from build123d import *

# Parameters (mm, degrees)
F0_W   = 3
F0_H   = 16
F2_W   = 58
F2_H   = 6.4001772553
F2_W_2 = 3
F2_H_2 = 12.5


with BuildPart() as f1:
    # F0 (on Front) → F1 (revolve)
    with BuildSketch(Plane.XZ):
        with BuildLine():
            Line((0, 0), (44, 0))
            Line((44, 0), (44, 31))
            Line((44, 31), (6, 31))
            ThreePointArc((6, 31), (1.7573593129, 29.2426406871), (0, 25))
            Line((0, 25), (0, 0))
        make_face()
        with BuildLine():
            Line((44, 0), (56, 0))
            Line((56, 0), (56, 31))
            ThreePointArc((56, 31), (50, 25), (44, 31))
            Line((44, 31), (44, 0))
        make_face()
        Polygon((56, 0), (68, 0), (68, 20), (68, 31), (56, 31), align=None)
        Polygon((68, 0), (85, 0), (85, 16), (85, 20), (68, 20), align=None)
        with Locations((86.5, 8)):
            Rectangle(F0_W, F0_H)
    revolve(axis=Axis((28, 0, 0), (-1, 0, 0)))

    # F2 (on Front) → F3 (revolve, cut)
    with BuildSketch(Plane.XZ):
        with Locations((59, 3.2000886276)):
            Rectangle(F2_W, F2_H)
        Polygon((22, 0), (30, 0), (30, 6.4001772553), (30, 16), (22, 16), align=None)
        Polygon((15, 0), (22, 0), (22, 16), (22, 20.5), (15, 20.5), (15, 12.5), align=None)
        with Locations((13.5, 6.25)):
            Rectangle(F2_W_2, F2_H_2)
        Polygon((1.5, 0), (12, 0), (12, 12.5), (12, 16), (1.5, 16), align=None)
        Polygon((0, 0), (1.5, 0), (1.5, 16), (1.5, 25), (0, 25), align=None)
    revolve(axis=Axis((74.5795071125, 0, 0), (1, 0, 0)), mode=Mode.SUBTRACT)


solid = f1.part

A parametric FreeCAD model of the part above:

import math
import FreeCAD as App
import Part
import Sketcher
from FreeCAD import Vector

doc = App.newDocument("Part")
body = doc.addObject("PartDesign::Body", "Body")

sketch1 = doc.addObject("Sketcher::SketchObject", "Sketch")
body.addObject(sketch1)
sketch1.AttachmentSupport = (doc.XZ_Plane, [""])
sketch1.MapMode = "FlatFace"
sketch1.addGeometry([
    Part.LineSegment(Vector(0, 0, 0), Vector(88, 0, 0)),
    Part.LineSegment(Vector(88, 0, 0), Vector(88, 16, 0)),
    Part.LineSegment(Vector(88, 16, 0), Vector(85, 16, 0)),
    Part.LineSegment(Vector(85, 16, 0), Vector(85, 20, 0)),
    Part.LineSegment(Vector(85, 20, 0), Vector(68, 20, 0)),
    Part.LineSegment(Vector(68, 20, 0), Vector(68, 31, 0)),
    Part.LineSegment(Vector(68, 31, 0), Vector(56, 31, 0)),
    Part.ArcOfCircle(Part.Circle(Vector(50, 31, 0), Vector(0, 0, 1), 6), math.radians(180), math.radians(360)),
    Part.LineSegment(Vector(44, 31, 0), Vector(6, 31, 0)),
    Part.ArcOfCircle(Part.Circle(Vector(6, 25, 0), Vector(0, 0, 1), 6), math.radians(90), math.radians(180)),
    Part.LineSegment(Vector(0, 25, 0), Vector(0, 0, 0)),
], False)
sketch1.addConstraint([
    Sketcher.Constraint("Coincident", 0, 2, 1, 1),
    Sketcher.Constraint("Coincident", 1, 2, 2, 1),
    Sketcher.Constraint("Coincident", 2, 2, 3, 1),
    Sketcher.Constraint("Coincident", 3, 2, 4, 1),
    Sketcher.Constraint("Coincident", 4, 2, 5, 1),
    Sketcher.Constraint("Coincident", 5, 2, 6, 1),
    Sketcher.Constraint("Coincident", 6, 2, 7, 2),
    Sketcher.Constraint("Coincident", 7, 1, 8, 1),
    Sketcher.Constraint("Tangent", 8, 2, 9, 1),
    Sketcher.Constraint("Tangent", 9, 2, 10, 1),
    Sketcher.Constraint("Coincident", 10, 2, 0, 1),
    Sketcher.Constraint("Horizontal", 0),
    Sketcher.Constraint("Vertical", 1),
    Sketcher.Constraint("Horizontal", 2),
    Sketcher.Constraint("Vertical", 3),
    Sketcher.Constraint("Horizontal", 4),
    Sketcher.Constraint("Vertical", 5),
    Sketcher.Constraint("Horizontal", 6),
    Sketcher.Constraint("Horizontal", 8),
    Sketcher.Constraint("Vertical", 10),
    Sketcher.Constraint("Coincident", 10, 2, -1, 1),
    Sketcher.Constraint("Equal", 7, 9),
    Sketcher.Constraint("Horizontal", 7, 3, 5, 2),
    Sketcher.Constraint("Horizontal", 6, 2, 7, 1),
    Sketcher.Constraint("Radius", 7, 6.0),
    Sketcher.Constraint("DistanceX", 0, 1, 0, 2, 88.0),
    Sketcher.Constraint("DistanceX", 2, 2, 2, 1, 3.0),
    Sketcher.Constraint("DistanceX", 4, 2, 4, 1, 17.0),
    Sketcher.Constraint("DistanceX", 6, 2, 6, 1, 12.0),
    Sketcher.Constraint("DistanceY", 1, 1, 1, 2, 16.0),
    Sketcher.Constraint("DistanceY", 3, 1, 3, 2, 4.0),
    Sketcher.Constraint("DistanceY", 5, 1, 5, 2, 11.0),
])
revolution = doc.addObject("PartDesign::Revolution", "Revolution")
body.addObject(revolution)
revolution.Profile = sketch1
revolution.ReferenceAxis = (sketch1, ["H_Axis"])
revolution.Angle = 360

sketch2 = doc.addObject("Sketcher::SketchObject", "Sketch001")
body.addObject(sketch2)
sketch2.AttachmentSupport = (doc.XZ_Plane, [""])
sketch2.MapMode = "FlatFace"
sketch2.addGeometry([
    Part.LineSegment(Vector(88, 0, 0), Vector(88, 6.4, 0)),
    Part.LineSegment(Vector(88, 6.4, 0), Vector(30, 6.4, 0)),
    Part.LineSegment(Vector(30, 6.4, 0), Vector(30, 16, 0)),
    Part.LineSegment(Vector(30, 16, 0), Vector(22, 16, 0)),
    Part.LineSegment(Vector(22, 16, 0), Vector(22, 20.5, 0)),
    Part.LineSegment(Vector(22, 20.5, 0), Vector(15, 20.5, 0)),
    Part.LineSegment(Vector(15, 20.5, 0), Vector(15, 12.5, 0)),
    Part.LineSegment(Vector(15, 12.5, 0), Vector(12, 12.5, 0)),
    Part.LineSegment(Vector(12, 12.5, 0), Vector(12, 16, 0)),
    Part.LineSegment(Vector(12, 16, 0), Vector(1.5, 16, 0)),
    Part.LineSegment(Vector(1.5, 16, 0), Vector(1.5, 25, 0)),
    Part.LineSegment(Vector(1.5, 25, 0), Vector(0, 25, 0)),
    Part.LineSegment(Vector(0, 25, 0), Vector(0, 0, 0)),
    Part.LineSegment(Vector(0, 0, 0), Vector(88, 0, 0)),
], False)
sketch2.addConstraint([
    Sketcher.Constraint("Coincident", 0, 2, 1, 1),
    Sketcher.Constraint("Coincident", 1, 2, 2, 1),
    Sketcher.Constraint("Coincident", 2, 2, 3, 1),
    Sketcher.Constraint("Coincident", 3, 2, 4, 1),
    Sketcher.Constraint("Coincident", 4, 2, 5, 1),
    Sketcher.Constraint("Coincident", 5, 2, 6, 1),
    Sketcher.Constraint("Coincident", 6, 2, 7, 1),
    Sketcher.Constraint("Coincident", 7, 2, 8, 1),
    Sketcher.Constraint("Coincident", 8, 2, 9, 1),
    Sketcher.Constraint("Coincident", 9, 2, 10, 1),
    Sketcher.Constraint("Coincident", 10, 2, 11, 1),
    Sketcher.Constraint("Coincident", 11, 2, 12, 1),
    Sketcher.Constraint("Coincident", 12, 2, 13, 1),
    Sketcher.Constraint("Coincident", 13, 2, 0, 1),
    Sketcher.Constraint("Vertical", 0),
    Sketcher.Constraint("Horizontal", 1),
    Sketcher.Constraint("Vertical", 2),
    Sketcher.Constraint("Horizontal", 3),
    Sketcher.Constraint("Vertical", 4),
    Sketcher.Constraint("Horizontal", 5),
    Sketcher.Constraint("Vertical", 6),
    Sketcher.Constraint("Horizontal", 7),
    Sketcher.Constraint("Vertical", 8),
    Sketcher.Constraint("Horizontal", 9),
    Sketcher.Constraint("Vertical", 10),
    Sketcher.Constraint("Horizontal", 11),
    Sketcher.Constraint("Vertical", 12),
    Sketcher.Constraint("Horizontal", 13),
    Sketcher.Constraint("Coincident", 12, 2, -1, 1),
    Sketcher.Constraint("Horizontal", 3, 2, 8, 2),
    Sketcher.Constraint("Equal", 3, 6),
    Sketcher.Constraint("DistanceX", 1, 2, 1, 1, 58.0),
    Sketcher.Constraint("DistanceX", 3, 2, 3, 1, 8.0),
    Sketcher.Constraint("DistanceX", 5, 2, 5, 1, 7.0),
    Sketcher.Constraint("DistanceX", 7, 2, 7, 1, 3.0),
    Sketcher.Constraint("DistanceX", 13, 1, 13, 2, 88.0),
    Sketcher.Constraint("DistanceY", 10, 1, 10, 2, 9.0),
    Sketcher.Constraint("DistanceY", 12, 2, 12, 1, 25.0),
    Sketcher.Constraint("DistanceX", 9, 2, 9, 1, 10.5),
    Sketcher.Constraint("DistanceY", 4, 1, 4, 2, 4.5),
    Sketcher.Constraint("DistanceY", 0, 1, 0, 2, 6.400177),
])
groove = doc.addObject("PartDesign::Groove", "Groove")
body.addObject(groove)
groove.Profile = sketch2
groove.ReferenceAxis = (sketch2, ["H_Axis"])
groove.Angle = 360

doc.recompute()
